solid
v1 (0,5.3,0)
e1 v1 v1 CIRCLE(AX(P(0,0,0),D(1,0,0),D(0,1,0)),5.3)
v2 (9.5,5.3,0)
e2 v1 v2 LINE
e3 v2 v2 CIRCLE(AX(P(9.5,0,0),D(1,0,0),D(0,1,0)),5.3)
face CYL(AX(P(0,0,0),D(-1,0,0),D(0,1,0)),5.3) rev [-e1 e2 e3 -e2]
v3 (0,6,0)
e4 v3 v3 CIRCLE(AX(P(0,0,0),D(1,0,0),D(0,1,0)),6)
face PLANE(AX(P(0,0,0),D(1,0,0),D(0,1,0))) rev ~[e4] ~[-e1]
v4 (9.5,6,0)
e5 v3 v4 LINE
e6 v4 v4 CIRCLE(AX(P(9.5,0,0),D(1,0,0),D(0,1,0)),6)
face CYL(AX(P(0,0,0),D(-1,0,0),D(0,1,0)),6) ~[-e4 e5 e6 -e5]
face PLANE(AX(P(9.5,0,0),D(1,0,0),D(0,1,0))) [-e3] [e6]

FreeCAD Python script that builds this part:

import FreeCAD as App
import Part
import Sketcher
Q = App.Units.Quantity

doc = App.newDocument("Part")
body = doc.addObject("PartDesign::Body", "Body")

# Sketch on YZ plane
sketch1 = doc.addObject("Sketcher::SketchObject", "Sketch")
body.addObject(sketch1)
sketch1.AttachmentSupport = (doc.YZ_Plane, [""])
sketch1.MapMode = "FlatFace"
sketch1.addGeometry([
    Part.Circle(App.Vector(0, 0, 0), App.Vector(0, 0, 1), 6),
    Part.Circle(App.Vector(0, 0, 0), App.Vector(0, 0, 1), 5.3),
], False)
sketch1.addConstraint([
    Sketcher.Constraint("Coincident", 0, 3, -1, 1),
    Sketcher.Constraint("Coincident", 1, 3, -1, 1),
    Sketcher.Constraint("Diameter", 0, Q("12 mm")),
    Sketcher.Constraint("Diameter", 1, Q("10.6 mm")),
])
pad1 = doc.addObject("PartDesign::Pad", "Pad")
body.addObject(pad1)
pad1.Profile = sketch1
pad1.Length = 9.5

doc.recompute()
